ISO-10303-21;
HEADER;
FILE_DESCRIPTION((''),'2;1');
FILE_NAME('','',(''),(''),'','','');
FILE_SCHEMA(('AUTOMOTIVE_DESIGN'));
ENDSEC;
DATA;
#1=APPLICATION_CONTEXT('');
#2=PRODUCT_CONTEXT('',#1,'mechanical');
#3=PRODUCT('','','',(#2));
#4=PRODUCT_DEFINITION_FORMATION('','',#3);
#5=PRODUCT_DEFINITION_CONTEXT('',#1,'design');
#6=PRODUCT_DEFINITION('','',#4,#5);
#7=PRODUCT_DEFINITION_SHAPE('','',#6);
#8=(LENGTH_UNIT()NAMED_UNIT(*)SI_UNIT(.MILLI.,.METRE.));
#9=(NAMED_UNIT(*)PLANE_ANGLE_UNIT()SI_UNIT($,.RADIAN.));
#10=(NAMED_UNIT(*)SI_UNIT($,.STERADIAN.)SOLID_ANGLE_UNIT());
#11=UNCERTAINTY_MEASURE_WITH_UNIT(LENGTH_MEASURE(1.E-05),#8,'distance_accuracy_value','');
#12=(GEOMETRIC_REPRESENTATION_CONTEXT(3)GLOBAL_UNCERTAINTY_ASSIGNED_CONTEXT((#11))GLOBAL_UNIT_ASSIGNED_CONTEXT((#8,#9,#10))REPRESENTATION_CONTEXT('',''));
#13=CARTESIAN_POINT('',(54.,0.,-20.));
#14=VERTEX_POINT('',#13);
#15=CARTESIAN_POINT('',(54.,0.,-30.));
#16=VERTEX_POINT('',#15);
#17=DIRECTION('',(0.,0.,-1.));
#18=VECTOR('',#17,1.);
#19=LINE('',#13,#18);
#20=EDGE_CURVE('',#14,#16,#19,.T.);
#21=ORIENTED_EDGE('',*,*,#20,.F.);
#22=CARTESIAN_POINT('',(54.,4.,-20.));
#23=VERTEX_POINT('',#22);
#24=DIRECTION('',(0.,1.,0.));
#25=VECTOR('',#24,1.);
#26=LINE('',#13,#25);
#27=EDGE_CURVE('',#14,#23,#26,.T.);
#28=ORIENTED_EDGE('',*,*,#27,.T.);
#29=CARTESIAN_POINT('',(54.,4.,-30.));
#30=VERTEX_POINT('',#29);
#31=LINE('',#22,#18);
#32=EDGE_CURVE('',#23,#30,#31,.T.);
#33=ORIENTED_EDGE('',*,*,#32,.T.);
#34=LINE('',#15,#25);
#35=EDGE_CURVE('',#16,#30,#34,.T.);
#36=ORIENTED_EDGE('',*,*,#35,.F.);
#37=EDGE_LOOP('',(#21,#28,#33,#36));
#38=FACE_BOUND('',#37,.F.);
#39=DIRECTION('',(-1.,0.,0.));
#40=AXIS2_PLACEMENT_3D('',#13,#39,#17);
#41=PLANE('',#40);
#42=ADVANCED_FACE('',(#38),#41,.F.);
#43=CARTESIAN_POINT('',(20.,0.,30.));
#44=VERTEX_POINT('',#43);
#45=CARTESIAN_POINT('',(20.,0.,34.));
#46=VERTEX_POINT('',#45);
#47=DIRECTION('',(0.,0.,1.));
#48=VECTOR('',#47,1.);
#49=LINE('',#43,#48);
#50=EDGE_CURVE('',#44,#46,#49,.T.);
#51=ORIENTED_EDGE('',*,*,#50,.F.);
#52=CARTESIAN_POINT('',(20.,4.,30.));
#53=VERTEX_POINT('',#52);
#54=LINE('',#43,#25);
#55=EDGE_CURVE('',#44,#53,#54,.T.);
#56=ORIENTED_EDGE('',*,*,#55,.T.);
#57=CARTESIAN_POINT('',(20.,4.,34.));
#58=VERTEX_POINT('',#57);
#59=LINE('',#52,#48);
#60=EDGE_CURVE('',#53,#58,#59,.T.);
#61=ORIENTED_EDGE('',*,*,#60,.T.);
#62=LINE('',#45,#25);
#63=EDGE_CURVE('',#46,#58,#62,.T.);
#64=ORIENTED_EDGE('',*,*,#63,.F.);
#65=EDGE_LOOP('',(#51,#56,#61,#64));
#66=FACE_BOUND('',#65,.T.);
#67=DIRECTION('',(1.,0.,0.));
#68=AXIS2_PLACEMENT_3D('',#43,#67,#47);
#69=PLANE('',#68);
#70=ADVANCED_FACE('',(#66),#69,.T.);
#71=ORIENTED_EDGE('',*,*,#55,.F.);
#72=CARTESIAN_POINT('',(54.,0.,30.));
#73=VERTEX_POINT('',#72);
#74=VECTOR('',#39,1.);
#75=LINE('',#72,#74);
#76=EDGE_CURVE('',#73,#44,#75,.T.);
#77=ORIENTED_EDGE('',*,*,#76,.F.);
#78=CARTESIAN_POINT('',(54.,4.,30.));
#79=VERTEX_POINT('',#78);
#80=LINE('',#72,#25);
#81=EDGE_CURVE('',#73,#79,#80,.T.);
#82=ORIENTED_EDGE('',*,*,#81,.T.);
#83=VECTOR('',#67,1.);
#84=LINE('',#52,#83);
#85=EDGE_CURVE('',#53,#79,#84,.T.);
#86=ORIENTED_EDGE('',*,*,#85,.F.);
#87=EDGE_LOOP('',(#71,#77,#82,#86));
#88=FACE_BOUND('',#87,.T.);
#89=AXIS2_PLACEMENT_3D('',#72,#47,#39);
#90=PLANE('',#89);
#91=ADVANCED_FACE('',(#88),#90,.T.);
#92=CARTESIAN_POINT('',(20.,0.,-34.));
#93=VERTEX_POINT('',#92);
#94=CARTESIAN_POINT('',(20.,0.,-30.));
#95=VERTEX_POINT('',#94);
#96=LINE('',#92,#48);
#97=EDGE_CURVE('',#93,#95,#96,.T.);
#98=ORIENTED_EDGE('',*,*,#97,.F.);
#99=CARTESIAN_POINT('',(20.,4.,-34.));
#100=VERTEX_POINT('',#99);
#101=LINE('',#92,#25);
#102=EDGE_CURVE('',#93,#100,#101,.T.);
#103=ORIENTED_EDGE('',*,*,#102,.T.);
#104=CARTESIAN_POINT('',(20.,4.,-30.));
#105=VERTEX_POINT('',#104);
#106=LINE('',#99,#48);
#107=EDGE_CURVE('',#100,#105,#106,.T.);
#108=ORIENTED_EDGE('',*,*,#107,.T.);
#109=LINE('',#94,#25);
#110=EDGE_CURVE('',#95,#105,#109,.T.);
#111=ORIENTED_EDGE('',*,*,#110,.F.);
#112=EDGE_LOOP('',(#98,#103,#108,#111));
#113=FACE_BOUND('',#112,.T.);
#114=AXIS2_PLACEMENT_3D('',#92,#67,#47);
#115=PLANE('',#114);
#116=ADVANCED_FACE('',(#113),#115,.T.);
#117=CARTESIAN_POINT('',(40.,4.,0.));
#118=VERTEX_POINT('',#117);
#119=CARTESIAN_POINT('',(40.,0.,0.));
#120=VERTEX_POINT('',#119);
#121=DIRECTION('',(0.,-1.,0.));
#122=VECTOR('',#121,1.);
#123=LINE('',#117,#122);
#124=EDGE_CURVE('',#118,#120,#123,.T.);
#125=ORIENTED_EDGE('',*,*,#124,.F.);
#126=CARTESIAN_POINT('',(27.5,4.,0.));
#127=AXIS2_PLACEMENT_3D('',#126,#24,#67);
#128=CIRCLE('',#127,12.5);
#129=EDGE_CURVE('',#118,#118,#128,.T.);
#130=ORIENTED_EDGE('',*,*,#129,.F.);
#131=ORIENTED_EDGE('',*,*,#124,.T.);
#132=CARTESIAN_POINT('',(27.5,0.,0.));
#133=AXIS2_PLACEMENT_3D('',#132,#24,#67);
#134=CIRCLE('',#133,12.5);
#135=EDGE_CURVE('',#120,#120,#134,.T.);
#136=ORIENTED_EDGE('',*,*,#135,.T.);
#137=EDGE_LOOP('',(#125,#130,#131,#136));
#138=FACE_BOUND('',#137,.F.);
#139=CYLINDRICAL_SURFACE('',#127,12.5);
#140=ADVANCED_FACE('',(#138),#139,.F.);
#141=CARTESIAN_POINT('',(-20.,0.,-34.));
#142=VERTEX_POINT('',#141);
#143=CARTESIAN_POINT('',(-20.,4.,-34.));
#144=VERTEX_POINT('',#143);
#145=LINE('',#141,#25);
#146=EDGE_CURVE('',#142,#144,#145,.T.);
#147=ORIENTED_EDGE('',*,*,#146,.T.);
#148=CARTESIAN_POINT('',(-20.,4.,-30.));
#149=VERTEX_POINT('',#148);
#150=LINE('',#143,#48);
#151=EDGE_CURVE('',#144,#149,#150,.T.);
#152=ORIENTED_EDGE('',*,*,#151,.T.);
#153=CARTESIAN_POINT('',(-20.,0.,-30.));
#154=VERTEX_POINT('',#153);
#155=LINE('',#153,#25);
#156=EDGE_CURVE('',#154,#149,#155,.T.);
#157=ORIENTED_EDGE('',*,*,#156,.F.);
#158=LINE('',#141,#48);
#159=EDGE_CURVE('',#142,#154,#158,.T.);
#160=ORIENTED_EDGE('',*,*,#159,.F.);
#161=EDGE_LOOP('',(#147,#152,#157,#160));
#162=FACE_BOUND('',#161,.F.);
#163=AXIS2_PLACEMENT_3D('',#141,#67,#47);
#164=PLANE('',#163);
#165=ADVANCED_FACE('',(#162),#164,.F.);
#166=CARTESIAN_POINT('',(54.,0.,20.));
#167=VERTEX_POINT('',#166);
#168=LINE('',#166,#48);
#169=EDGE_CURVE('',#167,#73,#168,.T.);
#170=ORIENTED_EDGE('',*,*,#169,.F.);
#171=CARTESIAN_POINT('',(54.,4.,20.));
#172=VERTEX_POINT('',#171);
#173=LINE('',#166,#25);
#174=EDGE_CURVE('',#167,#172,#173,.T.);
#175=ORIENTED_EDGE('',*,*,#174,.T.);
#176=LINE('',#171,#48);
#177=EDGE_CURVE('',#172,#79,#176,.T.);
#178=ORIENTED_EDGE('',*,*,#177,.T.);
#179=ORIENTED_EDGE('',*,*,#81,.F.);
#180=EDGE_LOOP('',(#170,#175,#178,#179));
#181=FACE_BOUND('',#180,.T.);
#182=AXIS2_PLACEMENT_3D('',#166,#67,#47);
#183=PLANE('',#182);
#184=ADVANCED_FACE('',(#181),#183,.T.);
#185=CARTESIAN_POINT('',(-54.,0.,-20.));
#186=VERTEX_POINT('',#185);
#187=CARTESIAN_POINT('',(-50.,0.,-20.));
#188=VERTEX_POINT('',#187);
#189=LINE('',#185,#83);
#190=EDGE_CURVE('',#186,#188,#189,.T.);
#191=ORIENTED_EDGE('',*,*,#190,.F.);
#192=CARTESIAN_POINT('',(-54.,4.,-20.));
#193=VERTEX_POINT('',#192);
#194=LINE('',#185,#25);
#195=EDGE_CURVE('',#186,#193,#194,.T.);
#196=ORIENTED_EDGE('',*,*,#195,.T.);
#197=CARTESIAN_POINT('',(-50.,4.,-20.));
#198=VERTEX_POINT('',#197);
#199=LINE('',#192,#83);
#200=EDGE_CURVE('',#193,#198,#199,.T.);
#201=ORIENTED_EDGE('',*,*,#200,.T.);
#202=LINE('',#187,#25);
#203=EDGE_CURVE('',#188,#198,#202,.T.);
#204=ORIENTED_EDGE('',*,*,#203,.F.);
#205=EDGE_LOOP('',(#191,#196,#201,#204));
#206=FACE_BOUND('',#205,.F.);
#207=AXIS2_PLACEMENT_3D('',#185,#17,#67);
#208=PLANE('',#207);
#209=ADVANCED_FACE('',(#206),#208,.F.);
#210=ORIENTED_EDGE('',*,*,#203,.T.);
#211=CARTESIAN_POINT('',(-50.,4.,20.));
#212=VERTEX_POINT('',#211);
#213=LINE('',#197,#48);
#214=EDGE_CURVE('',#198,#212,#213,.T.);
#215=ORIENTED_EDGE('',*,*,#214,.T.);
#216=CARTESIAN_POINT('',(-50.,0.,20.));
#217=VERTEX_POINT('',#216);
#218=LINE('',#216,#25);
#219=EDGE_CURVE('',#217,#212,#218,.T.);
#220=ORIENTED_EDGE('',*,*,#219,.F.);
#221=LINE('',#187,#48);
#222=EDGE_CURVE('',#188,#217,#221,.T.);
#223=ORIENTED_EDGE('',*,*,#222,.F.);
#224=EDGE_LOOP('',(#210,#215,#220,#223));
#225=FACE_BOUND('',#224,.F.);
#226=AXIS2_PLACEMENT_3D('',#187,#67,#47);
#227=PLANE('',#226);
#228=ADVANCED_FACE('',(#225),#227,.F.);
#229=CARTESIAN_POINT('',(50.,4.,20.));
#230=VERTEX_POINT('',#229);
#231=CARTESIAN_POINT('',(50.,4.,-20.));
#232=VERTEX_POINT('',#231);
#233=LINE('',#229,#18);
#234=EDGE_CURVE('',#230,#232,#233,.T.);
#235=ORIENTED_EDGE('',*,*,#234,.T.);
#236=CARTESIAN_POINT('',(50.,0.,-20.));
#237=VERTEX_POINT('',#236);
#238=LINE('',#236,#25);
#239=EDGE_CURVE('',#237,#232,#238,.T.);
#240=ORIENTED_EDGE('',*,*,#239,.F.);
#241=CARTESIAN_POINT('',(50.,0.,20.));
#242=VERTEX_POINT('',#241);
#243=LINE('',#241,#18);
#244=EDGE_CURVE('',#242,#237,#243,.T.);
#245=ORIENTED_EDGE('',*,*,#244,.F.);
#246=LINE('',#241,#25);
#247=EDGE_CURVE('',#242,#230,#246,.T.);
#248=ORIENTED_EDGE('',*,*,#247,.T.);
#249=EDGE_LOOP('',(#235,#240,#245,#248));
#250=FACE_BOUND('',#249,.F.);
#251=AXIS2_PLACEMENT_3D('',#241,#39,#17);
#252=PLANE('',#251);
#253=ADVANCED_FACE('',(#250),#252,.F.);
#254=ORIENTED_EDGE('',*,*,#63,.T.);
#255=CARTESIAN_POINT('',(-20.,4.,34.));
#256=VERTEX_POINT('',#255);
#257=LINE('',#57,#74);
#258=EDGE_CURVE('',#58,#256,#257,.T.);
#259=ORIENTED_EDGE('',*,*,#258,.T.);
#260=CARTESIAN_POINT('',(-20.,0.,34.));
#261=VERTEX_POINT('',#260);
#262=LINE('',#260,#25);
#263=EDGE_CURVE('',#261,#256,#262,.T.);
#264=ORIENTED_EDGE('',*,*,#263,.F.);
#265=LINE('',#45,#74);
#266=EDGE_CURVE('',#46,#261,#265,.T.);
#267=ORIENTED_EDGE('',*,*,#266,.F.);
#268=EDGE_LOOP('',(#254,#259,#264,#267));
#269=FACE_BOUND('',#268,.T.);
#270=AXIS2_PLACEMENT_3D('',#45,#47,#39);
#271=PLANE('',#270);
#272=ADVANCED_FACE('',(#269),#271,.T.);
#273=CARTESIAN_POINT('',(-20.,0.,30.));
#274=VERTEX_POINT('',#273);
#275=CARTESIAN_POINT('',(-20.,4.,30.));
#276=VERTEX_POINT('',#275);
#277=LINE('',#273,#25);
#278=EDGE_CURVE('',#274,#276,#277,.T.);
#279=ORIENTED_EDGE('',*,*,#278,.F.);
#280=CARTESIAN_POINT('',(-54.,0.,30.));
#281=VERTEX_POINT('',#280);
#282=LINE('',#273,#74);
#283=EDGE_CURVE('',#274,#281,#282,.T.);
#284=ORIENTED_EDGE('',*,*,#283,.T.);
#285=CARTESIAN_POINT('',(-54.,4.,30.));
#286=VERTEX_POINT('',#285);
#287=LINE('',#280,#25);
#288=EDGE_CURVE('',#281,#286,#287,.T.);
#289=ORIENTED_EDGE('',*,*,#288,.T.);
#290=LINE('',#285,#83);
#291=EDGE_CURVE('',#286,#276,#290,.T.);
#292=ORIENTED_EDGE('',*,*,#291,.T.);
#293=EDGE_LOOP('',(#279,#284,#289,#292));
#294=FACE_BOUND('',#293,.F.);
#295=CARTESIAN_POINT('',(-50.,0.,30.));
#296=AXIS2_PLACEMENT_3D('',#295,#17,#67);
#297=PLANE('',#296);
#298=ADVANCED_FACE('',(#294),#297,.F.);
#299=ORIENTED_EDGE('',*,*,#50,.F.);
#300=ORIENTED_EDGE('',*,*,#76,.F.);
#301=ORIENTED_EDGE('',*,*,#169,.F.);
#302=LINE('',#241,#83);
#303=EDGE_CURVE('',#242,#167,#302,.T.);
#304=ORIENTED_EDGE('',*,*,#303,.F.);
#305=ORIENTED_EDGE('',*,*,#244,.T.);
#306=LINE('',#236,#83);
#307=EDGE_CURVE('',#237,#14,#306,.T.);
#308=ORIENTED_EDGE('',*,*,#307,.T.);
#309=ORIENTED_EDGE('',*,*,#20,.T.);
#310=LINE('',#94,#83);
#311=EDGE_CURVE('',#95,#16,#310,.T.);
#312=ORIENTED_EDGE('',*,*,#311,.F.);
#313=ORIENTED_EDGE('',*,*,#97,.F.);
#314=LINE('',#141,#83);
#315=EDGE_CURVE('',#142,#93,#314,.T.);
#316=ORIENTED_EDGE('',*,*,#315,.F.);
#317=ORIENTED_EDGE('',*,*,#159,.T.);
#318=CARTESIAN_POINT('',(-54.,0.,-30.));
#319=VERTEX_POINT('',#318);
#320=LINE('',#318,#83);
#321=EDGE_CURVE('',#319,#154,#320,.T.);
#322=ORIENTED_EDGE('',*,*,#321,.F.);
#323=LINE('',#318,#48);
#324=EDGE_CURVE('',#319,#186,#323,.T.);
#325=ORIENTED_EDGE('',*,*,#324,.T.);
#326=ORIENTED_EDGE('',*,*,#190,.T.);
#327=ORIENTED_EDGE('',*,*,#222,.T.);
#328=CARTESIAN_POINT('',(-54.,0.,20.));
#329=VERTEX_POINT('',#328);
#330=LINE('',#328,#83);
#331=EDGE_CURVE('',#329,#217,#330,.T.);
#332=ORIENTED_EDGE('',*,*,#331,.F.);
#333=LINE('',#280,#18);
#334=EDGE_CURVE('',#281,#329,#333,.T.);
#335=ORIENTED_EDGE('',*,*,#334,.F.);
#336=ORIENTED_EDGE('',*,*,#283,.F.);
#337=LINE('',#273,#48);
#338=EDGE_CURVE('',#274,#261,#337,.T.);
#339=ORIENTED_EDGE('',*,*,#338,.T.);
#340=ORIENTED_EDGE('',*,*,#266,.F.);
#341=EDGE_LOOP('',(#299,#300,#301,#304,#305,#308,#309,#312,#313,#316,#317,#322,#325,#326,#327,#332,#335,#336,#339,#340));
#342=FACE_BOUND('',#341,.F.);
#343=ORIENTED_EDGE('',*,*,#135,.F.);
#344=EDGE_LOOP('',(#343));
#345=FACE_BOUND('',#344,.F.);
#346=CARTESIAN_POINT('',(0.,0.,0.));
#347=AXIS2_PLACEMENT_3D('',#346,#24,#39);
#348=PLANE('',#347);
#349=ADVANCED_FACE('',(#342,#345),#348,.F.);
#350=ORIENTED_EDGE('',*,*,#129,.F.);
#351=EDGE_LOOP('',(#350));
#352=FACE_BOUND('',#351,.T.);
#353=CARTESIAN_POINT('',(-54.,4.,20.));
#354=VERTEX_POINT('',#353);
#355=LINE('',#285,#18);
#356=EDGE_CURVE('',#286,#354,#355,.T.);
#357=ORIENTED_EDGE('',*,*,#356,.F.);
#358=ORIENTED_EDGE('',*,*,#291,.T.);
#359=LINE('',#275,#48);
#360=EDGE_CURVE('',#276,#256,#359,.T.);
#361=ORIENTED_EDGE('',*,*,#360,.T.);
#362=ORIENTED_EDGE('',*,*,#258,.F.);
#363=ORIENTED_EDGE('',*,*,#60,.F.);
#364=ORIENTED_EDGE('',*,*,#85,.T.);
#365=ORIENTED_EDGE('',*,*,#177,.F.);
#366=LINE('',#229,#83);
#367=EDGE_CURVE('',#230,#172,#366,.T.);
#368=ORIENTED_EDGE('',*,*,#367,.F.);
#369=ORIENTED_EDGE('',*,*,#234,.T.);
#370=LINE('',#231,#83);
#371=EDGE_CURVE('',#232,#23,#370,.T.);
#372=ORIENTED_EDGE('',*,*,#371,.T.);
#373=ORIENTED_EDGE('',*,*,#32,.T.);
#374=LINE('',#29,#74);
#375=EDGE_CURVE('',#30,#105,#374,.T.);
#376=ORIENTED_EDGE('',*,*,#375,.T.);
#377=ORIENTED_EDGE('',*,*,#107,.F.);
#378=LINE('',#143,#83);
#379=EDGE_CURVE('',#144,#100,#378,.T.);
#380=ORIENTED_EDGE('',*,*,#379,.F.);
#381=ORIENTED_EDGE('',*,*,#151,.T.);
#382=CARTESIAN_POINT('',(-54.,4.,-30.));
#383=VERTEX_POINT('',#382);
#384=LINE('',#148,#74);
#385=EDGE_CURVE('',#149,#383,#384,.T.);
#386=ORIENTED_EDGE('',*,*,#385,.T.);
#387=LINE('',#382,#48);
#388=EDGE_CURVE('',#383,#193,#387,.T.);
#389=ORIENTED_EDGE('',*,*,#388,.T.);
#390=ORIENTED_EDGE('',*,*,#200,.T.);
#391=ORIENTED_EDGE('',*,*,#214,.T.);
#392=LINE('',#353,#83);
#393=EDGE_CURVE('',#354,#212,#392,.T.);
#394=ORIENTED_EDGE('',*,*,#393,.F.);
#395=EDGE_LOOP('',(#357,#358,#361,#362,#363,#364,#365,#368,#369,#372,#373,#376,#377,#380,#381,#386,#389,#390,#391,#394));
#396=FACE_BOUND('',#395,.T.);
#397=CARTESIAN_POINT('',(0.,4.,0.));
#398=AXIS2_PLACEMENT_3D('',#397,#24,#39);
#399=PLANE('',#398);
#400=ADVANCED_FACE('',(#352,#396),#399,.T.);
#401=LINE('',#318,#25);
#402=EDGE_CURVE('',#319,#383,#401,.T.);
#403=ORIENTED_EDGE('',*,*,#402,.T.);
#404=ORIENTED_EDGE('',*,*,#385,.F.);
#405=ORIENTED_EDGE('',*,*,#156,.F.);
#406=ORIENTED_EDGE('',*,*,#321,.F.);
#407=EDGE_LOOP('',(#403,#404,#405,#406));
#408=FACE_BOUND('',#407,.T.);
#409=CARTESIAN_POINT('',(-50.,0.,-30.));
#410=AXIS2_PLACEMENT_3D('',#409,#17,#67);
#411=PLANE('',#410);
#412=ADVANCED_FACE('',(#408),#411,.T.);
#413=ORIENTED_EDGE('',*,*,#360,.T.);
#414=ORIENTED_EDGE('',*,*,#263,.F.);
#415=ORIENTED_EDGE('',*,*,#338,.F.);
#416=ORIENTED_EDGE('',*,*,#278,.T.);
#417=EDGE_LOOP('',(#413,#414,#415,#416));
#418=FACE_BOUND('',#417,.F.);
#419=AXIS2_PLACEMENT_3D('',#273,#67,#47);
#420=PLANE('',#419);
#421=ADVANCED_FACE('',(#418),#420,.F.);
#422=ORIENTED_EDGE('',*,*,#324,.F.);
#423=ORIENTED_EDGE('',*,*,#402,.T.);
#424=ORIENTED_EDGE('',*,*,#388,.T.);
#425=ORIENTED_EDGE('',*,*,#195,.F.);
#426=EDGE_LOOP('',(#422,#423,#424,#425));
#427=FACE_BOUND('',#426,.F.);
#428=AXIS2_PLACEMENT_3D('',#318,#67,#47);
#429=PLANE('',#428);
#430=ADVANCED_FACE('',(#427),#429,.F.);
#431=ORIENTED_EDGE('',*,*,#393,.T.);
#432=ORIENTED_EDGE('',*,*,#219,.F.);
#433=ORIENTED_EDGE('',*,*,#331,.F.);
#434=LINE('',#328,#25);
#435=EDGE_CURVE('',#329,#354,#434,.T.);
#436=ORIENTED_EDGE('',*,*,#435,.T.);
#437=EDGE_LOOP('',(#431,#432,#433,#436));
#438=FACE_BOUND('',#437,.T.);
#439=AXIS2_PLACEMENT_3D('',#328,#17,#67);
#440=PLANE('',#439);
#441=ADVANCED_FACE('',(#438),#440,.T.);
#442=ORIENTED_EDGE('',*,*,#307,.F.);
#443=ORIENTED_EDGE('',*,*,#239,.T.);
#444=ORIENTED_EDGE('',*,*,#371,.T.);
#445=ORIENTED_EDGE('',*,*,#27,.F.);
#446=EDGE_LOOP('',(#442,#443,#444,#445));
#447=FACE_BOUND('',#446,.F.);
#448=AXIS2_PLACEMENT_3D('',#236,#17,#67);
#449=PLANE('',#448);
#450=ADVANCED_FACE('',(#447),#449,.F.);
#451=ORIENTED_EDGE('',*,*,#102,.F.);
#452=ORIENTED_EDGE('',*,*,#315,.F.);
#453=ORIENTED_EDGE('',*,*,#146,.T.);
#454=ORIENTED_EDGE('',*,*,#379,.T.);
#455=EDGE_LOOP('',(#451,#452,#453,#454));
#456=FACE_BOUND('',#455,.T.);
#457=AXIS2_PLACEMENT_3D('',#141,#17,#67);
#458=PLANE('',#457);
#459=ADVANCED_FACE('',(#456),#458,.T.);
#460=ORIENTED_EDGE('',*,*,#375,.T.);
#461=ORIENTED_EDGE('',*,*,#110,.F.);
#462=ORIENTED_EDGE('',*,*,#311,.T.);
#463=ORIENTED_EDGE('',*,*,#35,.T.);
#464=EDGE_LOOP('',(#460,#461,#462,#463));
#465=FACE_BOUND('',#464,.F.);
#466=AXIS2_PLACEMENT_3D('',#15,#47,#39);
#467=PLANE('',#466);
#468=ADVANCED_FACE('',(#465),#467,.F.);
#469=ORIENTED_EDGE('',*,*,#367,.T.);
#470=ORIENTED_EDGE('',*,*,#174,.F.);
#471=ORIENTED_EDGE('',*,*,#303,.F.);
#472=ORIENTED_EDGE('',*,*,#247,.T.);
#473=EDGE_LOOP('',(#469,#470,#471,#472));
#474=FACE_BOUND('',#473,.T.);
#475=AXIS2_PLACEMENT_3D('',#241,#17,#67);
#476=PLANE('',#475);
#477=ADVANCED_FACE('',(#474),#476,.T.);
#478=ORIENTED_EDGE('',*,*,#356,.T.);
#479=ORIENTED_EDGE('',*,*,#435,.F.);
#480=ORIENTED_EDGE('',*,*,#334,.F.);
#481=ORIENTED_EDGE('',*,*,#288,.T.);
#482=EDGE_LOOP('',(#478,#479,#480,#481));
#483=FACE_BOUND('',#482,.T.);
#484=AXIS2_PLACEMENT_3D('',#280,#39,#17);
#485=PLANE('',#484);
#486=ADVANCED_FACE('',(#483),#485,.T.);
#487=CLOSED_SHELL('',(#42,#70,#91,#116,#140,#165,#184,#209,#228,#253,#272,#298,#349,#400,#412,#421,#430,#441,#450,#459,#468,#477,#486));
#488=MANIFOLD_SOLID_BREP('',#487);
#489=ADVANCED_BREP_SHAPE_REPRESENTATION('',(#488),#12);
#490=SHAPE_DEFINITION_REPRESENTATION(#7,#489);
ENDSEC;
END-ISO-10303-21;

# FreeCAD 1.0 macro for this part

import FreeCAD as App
import Part
import Sketcher


def add_polygon(sketch, points):
    """Adds a closed chain of lines whose ends are joined by coincident constraints."""
    first, n = sketch.GeometryCount, len(points)
    for a, b in zip(points, points[1:] + points[:1]):
        sketch.addGeometry(Part.LineSegment(App.Vector(*a, 0), App.Vector(*b, 0)), False)
    for i in range(n):
        sketch.addConstraint(Sketcher.Constraint("Coincident", first + i, 2, first + (i + 1) % n, 1))

doc = App.newDocument("Part")
params = doc.addObject("Spreadsheet::Sheet", "Params")
for row, (alias, value) in enumerate([
    ("sketch1_width", "4 mm"),
    ("sketch1_width2", "40 mm"),
    ("sketch1_width3", "34 mm"),
    ("pad1_length", "4 mm"),
    ("sketch2_diameter", "25 mm"),
    ("pocket1_length", "4 mm"),
], start=1):
    params.set(f"A{row}", alias)
    params.set(f"B{row}", "=" + value)
    params.setAlias(f"B{row}", alias)

body = doc.addObject("PartDesign::Body", "Body")

sketch1 = doc.addObject("Sketcher::SketchObject", "Sketch")
body.addObject(sketch1)
sketch1.AttachmentSupport = (doc.XZ_Plane, [""])
sketch1.MapMode = "FlatFace"
add_polygon(sketch1, [(50, 20), (50, -20), (54, -20), (54, -30), (20, -30), (20, -34), (-20, -34), (-20, -30), (-54, -30), (-54, -20), (-50, -20), (-50, 20), (-54, 20), (-54, 30), (-20, 30), (-20, 34), (20, 34), (20, 30), (54, 30), (54, 20)])
sketch1.addConstraint(Sketcher.Constraint("Vertical", 0))
sketch1.addConstraint(Sketcher.Constraint("Horizontal", 1))
sketch1.addConstraint(Sketcher.Constraint("Vertical", 2))
sketch1.addConstraint(Sketcher.Constraint("Horizontal", 3))
sketch1.addConstraint(Sketcher.Constraint("Vertical", 4))
sketch1.addConstraint(Sketcher.Constraint("Horizontal", 5))
sketch1.addConstraint(Sketcher.Constraint("Vertical", 6))
sketch1.addConstraint(Sketcher.Constraint("Horizontal", 7))
sketch1.addConstraint(Sketcher.Constraint("Vertical", 8))
sketch1.addConstraint(Sketcher.Constraint("Horizontal", 9))
sketch1.addConstraint(Sketcher.Constraint("Vertical", 10))
sketch1.addConstraint(Sketcher.Constraint("Horizontal", 11))
sketch1.addConstraint(Sketcher.Constraint("Vertical", 12))
sketch1.addConstraint(Sketcher.Constraint("Horizontal", 13))
sketch1.addConstraint(Sketcher.Constraint("Vertical", 14))
sketch1.addConstraint(Sketcher.Constraint("Horizontal", 15))
sketch1.addConstraint(Sketcher.Constraint("Vertical", 16))
sketch1.addConstraint(Sketcher.Constraint("Horizontal", 17))
sketch1.addConstraint(Sketcher.Constraint("Vertical", 18))
sketch1.addConstraint(Sketcher.Constraint("Horizontal", 19))
sketch1.addConstraint(Sketcher.Constraint("Symmetric", 0, 2, 10, 2, -1, 1))
sketch1.addConstraint(Sketcher.Constraint("Symmetric", 2, 2, 12, 2, -1, 1))
sketch1.addConstraint(Sketcher.Constraint("Symmetric", 4, 2, 14, 2, -1, 1))
sketch1.addConstraint(Sketcher.Constraint("Symmetric", 6, 2, 16, 2, -1, 1))
sketch1.addConstraint(Sketcher.Constraint("Symmetric", 8, 2, 18, 2, -1, 1))
sketch1.addConstraint(Sketcher.Constraint("Symmetric", 3, 2, 6, 2, -2))
sketch1.addConstraint(Sketcher.Constraint("Symmetric", 1, 2, 8, 2, -2))
sketch1.addConstraint(Sketcher.Constraint("Equal", 15, 0))
sketch1.addConstraint(Sketcher.Constraint("Equal", 19, 4))
sketch1.addConstraint(Sketcher.Constraint("DistanceX", 1, 1, 1, 2, 4.0))
sketch1.addConstraint(Sketcher.Constraint("DistanceX", 5, 2, 5, 1, 40.0))
sketch1.addConstraint(Sketcher.Constraint("DistanceY", 7, 2, 12, 2, 60.0))
sketch1.addConstraint(Sketcher.Constraint("DistanceX", 3, 2, 3, 1, 34.0))
sketch1.setExpression("Constraints[49]", "Params.sketch1_width")
sketch1.setExpression("Constraints[50]", "Params.sketch1_width2")
sketch1.setExpression("Constraints[52]", "Params.sketch1_width3")
pad1 = doc.addObject("PartDesign::Pad", "Pad")
body.addObject(pad1)
pad1.Profile = sketch1
pad1.setExpression("Length", "Params.pad1_length")
pad1.Reversed = True

sketch2 = doc.addObject("Sketcher::SketchObject", "Sketch001")
body.addObject(sketch2)
sketch2.AttachmentSupport = (doc.XZ_Plane, [""])
sketch2.MapMode = "FlatFace"
sketch2.AttachmentOffset = App.Placement(App.Vector(0, 0, -4), App.Rotation())
sketch2.addGeometry(Part.Circle(App.Vector(27.5, 0, 0), App.Vector(0, 0, 1), 12.5), False)
sketch2.addConstraint(Sketcher.Constraint("PointOnObject", 0, 3, -1))
sketch2.addConstraint(Sketcher.Constraint("Diameter", 0, 25.0))
sketch2.addConstraint(Sketcher.Constraint("DistanceX", -1, 1, 0, 3, 27.5))
sketch2.setExpression("Constraints[1]", "Params.sketch2_diameter")
pocket1 = doc.addObject("PartDesign::Pocket", "Pocket")
body.addObject(pocket1)
pocket1.Profile = sketch2
pocket1.setExpression("Length", "Params.pocket1_length")
pocket1.Reversed = True

doc.recompute()
